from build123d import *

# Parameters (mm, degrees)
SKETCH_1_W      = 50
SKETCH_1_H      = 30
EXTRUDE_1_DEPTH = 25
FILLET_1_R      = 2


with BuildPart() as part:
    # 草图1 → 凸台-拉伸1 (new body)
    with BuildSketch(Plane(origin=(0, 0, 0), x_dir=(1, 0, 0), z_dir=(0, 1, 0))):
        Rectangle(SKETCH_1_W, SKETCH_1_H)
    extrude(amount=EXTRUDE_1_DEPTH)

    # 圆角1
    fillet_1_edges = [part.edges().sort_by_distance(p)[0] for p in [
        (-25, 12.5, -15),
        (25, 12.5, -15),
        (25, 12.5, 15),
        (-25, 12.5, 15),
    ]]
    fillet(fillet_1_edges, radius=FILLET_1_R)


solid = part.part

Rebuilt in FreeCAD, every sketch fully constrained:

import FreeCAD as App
import Part
import Sketcher

V = App.Vector
Q = App.Units.Quantity


def edges_at(feature, points):
    """Names of the edges that pass closest to the given points."""
    edges = feature.Shape.Edges
    near = lambda p: min(range(len(edges)), key=lambda i: edges[i].distToShape(Part.Vertex(*p))[0])
    return sorted({f"Edge{near(p) + 1}" for p in points})

doc = App.newDocument("Part")
body = doc.addObject("PartDesign::Body", "Body")

# Sketch on XZ plane
sketch1 = doc.addObject("Sketcher::SketchObject", "Sketch")
body.addObject(sketch1)
sketch1.AttachmentSupport = (doc.XZ_Plane, [""])
sketch1.MapMode = "FlatFace"
sketch1.addGeometry([
    Part.LineSegment(V(-25, -15, 0), V(-25, 15, 0)),
    Part.LineSegment(V(-25, 15, 0), V(25, 15, 0)),
    Part.LineSegment(V(25, 15, 0), V(25, -15, 0)),
    Part.LineSegment(V(25, -15, 0), V(-25, -15, 0)),
], False)
sketch1.addConstraint([
    Sketcher.Constraint("Coincident", 0, 2, 1, 1),
    Sketcher.Constraint("Coincident", 1, 2, 2, 1),
    Sketcher.Constraint("Coincident", 2, 2, 3, 1),
    Sketcher.Constraint("Coincident", 3, 2, 0, 1),
    Sketcher.Constraint("Vertical", 0),
    Sketcher.Constraint("Horizontal", 1),
    Sketcher.Constraint("Vertical", 2),
    Sketcher.Constraint("Horizontal", 3),
    Sketcher.Constraint("Symmetric", 0, 2, 2, 2, -1, 1),
    Sketcher.Constraint("DistanceX", 1, 1, 1, 2, Q("50 mm")),
    Sketcher.Constraint("DistanceY", 0, 1, 0, 2, Q("30 mm")),
])
pad1 = doc.addObject("PartDesign::Pad", "Pad")
body.addObject(pad1)
pad1.Profile = sketch1
pad1.Length = 25
pad1.Reversed = True
doc.recompute()

fillet = doc.addObject("PartDesign::Fillet", "Fillet")
body.addObject(fillet)
fillet.Base = (pad1, edges_at(pad1, [
    (-25, 12.5, -15),
    (25, 12.5, -15),
    (25, 12.5, 15),
    (-25, 12.5, 15),
]))
fillet.Radius = 2

doc.recompute()
